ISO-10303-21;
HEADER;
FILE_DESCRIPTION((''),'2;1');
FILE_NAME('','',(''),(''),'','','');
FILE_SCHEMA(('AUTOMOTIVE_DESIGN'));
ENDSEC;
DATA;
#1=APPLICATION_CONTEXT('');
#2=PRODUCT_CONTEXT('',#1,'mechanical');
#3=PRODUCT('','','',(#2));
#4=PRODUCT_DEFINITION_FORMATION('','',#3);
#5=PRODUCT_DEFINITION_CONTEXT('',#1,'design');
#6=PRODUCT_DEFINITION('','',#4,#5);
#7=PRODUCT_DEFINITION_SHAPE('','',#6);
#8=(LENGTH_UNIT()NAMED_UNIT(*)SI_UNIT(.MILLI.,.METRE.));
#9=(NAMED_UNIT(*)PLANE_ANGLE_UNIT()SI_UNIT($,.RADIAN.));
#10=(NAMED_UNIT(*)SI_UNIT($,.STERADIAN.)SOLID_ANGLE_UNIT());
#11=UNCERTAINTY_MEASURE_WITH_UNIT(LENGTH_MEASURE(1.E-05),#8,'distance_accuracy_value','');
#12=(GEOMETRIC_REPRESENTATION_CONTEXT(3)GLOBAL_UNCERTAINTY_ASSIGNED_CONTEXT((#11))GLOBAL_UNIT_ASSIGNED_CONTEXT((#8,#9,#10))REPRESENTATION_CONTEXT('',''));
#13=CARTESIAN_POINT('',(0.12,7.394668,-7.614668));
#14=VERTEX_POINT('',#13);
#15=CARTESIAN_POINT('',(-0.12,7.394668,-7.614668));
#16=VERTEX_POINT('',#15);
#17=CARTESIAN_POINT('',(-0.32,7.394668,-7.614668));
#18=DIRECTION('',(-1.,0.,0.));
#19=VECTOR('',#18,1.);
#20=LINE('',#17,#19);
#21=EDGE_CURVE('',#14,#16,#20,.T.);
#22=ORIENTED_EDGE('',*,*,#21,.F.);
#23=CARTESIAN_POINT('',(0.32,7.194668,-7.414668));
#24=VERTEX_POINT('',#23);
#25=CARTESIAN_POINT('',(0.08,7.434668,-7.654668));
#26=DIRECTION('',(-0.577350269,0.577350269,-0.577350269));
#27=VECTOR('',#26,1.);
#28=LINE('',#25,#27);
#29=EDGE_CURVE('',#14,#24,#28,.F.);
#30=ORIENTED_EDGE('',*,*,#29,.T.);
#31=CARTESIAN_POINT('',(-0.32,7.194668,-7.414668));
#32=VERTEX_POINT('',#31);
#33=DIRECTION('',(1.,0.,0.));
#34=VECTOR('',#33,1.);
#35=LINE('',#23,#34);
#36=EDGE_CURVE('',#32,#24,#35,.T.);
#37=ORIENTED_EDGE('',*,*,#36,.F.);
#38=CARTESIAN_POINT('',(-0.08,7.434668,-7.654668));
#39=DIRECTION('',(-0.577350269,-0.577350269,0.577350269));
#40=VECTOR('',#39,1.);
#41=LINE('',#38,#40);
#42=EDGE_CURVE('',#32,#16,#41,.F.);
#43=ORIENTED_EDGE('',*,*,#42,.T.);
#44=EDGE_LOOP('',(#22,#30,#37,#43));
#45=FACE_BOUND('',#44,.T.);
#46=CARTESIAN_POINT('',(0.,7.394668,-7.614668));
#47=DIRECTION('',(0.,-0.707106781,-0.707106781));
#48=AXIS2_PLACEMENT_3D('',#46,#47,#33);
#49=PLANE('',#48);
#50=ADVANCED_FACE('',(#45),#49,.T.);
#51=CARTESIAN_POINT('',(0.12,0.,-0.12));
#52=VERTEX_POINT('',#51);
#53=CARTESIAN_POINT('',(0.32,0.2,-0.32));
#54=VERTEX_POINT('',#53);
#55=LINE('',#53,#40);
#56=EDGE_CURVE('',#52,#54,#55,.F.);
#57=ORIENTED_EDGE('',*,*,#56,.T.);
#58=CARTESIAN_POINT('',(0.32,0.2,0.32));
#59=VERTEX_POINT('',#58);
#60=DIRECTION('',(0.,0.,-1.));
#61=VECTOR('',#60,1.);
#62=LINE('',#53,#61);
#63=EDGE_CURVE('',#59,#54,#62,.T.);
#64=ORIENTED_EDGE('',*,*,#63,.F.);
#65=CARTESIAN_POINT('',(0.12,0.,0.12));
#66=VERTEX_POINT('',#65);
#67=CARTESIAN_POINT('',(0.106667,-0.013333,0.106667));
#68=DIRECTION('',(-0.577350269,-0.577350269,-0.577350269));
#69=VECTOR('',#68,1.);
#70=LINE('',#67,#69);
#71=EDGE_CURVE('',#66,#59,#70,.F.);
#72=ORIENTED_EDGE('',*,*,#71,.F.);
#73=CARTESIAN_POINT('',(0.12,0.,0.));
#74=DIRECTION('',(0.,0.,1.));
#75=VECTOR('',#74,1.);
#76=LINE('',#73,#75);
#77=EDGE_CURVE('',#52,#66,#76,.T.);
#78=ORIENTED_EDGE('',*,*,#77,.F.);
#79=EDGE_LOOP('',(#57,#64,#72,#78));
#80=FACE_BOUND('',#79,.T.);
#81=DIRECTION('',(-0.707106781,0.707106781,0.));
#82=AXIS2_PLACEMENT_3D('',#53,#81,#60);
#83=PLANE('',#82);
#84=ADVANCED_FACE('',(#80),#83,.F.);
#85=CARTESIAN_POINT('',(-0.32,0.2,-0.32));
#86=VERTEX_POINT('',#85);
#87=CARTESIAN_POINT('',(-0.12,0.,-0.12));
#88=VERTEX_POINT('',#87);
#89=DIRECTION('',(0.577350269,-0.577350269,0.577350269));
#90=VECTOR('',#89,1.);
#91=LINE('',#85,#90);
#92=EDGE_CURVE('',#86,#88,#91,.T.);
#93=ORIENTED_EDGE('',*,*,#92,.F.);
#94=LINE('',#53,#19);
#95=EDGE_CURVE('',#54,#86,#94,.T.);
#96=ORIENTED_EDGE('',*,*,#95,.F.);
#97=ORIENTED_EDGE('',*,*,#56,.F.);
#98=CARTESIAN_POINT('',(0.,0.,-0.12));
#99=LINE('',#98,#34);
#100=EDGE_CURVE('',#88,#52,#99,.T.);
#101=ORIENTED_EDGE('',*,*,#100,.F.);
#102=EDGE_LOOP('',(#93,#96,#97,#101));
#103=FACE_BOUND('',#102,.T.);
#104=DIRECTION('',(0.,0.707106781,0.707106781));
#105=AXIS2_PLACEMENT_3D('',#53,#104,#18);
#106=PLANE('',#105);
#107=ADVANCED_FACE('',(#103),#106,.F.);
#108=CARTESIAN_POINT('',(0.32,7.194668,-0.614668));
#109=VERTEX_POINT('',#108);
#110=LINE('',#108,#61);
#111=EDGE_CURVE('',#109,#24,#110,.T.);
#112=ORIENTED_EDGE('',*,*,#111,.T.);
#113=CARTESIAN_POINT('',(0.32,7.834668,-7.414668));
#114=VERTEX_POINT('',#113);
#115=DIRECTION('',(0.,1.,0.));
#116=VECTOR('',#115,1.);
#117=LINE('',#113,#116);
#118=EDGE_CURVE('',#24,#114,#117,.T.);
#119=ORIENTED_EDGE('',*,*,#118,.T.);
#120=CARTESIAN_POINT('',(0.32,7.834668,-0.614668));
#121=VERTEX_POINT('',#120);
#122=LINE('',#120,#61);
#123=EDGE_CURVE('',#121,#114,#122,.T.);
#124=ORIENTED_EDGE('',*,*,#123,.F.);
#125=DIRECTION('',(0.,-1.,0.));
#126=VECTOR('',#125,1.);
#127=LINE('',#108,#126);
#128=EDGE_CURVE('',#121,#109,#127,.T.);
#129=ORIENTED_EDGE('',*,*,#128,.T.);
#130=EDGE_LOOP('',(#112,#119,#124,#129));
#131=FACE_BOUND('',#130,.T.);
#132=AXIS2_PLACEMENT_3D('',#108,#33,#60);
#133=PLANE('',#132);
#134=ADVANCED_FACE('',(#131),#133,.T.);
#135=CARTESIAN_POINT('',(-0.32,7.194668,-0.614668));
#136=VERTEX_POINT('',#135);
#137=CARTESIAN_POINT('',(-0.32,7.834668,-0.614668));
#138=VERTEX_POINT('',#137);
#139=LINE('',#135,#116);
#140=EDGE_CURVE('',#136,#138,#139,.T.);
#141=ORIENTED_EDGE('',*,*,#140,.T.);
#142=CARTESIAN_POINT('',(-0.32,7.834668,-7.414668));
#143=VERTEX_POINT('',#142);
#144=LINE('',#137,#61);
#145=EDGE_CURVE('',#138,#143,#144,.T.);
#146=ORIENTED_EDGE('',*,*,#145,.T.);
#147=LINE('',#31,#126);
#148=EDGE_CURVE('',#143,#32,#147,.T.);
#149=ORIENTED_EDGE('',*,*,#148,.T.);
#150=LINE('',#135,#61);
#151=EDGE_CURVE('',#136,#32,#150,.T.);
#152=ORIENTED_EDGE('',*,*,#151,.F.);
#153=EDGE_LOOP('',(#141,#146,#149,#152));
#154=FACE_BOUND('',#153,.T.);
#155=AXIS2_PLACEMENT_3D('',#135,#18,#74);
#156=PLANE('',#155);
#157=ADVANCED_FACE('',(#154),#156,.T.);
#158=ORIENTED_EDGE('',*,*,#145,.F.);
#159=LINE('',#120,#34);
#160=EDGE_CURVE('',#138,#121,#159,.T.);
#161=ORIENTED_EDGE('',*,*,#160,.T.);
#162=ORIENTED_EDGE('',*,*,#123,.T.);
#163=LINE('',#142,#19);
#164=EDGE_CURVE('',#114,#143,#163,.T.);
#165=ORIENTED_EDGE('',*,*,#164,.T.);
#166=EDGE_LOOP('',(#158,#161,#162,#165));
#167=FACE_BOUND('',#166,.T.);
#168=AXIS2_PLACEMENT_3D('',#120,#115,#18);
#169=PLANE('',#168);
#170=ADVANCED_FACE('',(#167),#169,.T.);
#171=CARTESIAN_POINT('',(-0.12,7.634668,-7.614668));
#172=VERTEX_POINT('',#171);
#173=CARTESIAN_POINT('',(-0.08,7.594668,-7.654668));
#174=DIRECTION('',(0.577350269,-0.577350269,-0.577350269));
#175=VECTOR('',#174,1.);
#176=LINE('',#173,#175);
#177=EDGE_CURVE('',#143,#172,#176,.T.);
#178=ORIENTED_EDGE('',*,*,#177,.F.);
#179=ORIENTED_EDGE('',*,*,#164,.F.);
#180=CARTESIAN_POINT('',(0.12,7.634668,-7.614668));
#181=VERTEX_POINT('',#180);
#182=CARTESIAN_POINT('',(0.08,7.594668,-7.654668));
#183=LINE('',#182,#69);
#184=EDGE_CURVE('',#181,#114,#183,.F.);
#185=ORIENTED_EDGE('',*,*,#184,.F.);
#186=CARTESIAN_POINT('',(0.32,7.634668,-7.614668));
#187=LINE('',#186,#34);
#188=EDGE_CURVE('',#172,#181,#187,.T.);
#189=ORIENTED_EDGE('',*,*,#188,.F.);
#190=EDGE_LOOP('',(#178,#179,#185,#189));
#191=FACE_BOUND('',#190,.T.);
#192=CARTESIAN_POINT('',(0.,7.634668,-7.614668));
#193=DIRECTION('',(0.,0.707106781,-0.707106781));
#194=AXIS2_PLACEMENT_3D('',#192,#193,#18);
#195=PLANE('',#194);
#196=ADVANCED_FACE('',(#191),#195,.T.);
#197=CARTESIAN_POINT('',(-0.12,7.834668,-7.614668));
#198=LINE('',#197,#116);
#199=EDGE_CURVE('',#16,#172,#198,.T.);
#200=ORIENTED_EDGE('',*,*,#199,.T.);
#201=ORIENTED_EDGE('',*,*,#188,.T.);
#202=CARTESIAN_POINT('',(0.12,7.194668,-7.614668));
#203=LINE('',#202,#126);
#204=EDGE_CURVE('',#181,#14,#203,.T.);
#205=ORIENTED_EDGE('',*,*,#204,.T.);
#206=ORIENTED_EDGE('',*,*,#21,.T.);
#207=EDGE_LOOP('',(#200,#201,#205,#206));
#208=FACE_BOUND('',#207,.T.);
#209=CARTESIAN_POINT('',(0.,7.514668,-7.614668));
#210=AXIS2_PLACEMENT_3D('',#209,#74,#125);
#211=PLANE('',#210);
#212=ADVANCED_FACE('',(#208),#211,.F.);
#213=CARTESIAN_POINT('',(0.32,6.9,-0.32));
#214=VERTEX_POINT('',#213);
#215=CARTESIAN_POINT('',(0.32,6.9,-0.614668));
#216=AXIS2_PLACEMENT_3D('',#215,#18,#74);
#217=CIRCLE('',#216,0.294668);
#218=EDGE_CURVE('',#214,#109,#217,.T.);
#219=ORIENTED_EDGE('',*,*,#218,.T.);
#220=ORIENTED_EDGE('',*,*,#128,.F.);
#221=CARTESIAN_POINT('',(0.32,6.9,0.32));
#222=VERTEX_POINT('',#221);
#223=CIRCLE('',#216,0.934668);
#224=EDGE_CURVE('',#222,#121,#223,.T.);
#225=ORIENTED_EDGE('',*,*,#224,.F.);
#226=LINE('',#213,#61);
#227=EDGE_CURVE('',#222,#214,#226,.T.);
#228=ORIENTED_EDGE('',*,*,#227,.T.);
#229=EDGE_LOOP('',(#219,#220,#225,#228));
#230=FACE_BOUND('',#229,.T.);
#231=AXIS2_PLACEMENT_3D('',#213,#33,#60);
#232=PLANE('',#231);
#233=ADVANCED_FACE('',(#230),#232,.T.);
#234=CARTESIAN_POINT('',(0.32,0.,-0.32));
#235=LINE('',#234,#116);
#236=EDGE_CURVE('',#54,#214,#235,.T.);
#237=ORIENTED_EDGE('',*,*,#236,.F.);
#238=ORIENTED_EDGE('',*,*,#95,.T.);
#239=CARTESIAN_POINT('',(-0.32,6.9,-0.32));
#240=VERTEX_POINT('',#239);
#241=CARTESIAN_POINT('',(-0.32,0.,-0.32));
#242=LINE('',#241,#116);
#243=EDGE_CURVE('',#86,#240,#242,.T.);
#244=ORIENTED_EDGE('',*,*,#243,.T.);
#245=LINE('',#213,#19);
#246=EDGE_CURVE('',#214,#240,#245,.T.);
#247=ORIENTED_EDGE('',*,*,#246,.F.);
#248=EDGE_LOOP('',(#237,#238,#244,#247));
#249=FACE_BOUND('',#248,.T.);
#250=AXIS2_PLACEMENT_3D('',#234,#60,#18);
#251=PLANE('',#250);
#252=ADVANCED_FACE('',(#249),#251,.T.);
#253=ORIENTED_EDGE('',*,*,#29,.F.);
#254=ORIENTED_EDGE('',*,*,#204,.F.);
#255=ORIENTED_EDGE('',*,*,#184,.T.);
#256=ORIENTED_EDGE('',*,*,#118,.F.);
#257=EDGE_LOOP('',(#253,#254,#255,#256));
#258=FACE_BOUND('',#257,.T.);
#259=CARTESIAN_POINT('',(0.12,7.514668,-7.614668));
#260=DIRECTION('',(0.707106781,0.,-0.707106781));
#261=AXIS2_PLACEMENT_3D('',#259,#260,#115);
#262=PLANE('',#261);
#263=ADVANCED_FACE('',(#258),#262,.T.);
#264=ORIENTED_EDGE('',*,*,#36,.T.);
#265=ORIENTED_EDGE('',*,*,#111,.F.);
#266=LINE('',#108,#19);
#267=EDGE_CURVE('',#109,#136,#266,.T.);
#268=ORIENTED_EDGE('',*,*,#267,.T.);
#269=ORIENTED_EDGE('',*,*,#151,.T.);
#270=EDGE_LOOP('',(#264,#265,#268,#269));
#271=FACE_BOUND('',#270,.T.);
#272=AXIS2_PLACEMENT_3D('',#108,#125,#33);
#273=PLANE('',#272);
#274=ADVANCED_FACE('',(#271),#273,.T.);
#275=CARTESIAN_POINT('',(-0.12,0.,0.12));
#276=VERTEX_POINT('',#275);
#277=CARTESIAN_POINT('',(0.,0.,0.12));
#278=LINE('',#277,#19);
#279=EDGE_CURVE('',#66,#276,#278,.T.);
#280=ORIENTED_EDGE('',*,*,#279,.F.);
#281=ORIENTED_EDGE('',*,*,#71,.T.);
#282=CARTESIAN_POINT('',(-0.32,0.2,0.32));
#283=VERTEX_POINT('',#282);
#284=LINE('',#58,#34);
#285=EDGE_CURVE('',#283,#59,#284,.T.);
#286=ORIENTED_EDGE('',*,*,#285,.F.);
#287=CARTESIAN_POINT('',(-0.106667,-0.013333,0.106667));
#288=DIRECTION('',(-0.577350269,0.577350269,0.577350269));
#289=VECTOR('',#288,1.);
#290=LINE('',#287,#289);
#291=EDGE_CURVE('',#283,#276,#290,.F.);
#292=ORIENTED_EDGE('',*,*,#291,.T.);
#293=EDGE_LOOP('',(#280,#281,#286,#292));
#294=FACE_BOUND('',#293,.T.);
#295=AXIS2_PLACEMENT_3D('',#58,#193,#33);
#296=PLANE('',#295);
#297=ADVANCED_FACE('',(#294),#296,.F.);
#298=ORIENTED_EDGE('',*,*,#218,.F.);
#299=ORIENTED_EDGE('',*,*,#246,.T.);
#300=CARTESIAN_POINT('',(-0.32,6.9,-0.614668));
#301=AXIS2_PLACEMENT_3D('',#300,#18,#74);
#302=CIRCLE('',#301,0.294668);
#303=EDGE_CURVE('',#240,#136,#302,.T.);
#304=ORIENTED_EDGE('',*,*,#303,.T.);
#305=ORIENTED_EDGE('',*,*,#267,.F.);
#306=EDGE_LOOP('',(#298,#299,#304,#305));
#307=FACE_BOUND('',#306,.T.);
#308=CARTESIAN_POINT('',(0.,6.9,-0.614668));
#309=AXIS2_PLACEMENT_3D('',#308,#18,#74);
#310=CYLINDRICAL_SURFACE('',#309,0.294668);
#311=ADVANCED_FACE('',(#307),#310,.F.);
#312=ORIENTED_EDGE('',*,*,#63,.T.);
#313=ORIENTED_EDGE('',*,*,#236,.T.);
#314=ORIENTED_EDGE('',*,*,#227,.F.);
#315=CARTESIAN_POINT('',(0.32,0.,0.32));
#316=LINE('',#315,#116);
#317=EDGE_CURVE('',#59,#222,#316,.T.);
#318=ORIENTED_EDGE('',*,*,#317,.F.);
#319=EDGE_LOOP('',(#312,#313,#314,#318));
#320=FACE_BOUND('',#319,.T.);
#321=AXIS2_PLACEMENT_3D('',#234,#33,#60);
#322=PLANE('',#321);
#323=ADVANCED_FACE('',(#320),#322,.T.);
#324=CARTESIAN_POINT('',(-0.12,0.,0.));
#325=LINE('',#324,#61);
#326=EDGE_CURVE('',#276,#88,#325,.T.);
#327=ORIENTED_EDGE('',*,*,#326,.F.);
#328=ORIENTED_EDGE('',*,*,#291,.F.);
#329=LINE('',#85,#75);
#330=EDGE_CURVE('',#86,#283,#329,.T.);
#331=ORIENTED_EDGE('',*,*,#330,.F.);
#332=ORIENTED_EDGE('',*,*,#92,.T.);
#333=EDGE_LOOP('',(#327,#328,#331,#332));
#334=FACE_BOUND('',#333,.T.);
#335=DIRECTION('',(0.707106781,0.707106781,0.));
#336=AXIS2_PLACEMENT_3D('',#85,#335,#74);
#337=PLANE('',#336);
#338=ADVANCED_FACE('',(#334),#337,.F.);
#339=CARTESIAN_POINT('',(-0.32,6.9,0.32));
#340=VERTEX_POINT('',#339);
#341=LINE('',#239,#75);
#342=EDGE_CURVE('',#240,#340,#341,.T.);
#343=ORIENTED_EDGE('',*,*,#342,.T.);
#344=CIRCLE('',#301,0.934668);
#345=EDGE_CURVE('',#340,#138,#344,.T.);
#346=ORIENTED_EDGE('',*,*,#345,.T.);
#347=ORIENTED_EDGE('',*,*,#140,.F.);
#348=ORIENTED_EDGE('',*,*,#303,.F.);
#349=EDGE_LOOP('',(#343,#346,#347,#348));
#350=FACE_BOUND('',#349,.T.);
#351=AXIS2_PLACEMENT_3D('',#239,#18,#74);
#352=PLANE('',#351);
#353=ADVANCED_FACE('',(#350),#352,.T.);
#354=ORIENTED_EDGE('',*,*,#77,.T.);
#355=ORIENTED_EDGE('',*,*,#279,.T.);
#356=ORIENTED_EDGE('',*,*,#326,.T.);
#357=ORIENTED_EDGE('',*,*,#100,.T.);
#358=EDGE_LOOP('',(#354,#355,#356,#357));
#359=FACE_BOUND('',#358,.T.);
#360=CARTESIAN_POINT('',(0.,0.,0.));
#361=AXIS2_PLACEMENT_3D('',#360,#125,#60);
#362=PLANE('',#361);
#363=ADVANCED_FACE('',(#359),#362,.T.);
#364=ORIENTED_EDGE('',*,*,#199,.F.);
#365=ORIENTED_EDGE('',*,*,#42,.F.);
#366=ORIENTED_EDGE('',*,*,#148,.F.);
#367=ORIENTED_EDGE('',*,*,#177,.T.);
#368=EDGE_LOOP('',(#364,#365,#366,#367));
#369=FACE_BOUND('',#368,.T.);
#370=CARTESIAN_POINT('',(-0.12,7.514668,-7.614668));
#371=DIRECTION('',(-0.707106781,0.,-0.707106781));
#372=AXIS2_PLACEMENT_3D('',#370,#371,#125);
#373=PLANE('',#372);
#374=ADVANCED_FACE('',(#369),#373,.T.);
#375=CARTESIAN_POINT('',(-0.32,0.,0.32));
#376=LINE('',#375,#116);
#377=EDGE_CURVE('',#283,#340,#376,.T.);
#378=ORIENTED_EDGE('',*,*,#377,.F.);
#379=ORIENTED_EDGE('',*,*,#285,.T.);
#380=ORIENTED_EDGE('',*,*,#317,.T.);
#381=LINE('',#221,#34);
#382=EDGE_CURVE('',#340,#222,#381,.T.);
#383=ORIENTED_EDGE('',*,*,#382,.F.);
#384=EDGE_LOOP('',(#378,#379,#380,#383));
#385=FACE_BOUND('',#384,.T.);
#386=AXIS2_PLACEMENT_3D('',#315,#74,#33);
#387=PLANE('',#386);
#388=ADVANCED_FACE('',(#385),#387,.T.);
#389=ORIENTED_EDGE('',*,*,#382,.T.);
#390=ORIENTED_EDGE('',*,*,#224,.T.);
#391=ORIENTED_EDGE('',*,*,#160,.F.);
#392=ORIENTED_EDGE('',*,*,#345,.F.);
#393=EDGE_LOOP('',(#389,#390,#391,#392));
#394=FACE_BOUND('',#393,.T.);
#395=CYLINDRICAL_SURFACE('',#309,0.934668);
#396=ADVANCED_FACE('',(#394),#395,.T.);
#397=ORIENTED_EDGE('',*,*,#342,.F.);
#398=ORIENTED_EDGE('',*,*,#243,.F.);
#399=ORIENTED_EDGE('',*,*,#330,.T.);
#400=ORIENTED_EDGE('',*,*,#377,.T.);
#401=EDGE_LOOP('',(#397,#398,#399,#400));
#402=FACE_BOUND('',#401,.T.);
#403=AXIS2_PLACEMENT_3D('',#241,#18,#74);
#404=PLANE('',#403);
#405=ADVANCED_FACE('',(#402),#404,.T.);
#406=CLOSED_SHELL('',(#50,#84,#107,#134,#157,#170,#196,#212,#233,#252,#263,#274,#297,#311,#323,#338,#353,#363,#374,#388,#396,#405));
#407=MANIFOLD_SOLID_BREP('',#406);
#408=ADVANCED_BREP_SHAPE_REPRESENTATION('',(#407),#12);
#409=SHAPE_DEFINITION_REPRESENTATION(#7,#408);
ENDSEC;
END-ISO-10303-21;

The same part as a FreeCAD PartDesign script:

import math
import FreeCAD as App
import Part
import Sketcher
from FreeCAD import Vector


def edges_at(feature, points):
    """Names of the edges that pass closest to the given points."""
    edges = feature.Shape.Edges
    near = lambda p: min(range(len(edges)), key=lambda i: edges[i].distToShape(Part.Vertex(*p))[0])
    return sorted({f"Edge{near(p) + 1}" for p in points})


def add_polygon(sketch, points):
    """Adds a closed chain of lines whose ends are joined by coincident constraints."""
    first, n = sketch.GeometryCount, len(points)
    for a, b in zip(points, points[1:] + points[:1]):
        sketch.addGeometry(Part.LineSegment(App.Vector(*a, 0), App.Vector(*b, 0)), False)
    for i in range(n):
        sketch.addConstraint(Sketcher.Constraint("Coincident", first + i, 2, first + (i + 1) % n, 1))

doc = App.newDocument("Part")
body = doc.addObject("PartDesign::Body", "Body")

# Sketch on XZ plane
sketch1 = body.newObject("Sketcher::SketchObject", "Sketch")
sketch1.AttachmentSupport = (doc.getObject("XZ_Plane"), [""])
sketch1.MapMode = "FlatFace"
add_polygon(sketch1, [(-0.3, -0.3), (-0.3, 0.3), (0.3, 0.3), (0.3, -0.3)])  # lines 0-3
sketch1.addConstraint(Sketcher.Constraint("Vertical", 0))
sketch1.addConstraint(Sketcher.Constraint("Horizontal", 1))
sketch1.addConstraint(Sketcher.Constraint("Vertical", 2))
sketch1.addConstraint(Sketcher.Constraint("Horizontal", 3))
sketch1.addConstraint(Sketcher.Constraint("Symmetric", 0, 2, 2, 2, -1, 1))
sketch1.addConstraint(Sketcher.Constraint("Equal", 3, 0))
sketch1.addConstraint(Sketcher.Constraint("DistanceX", 1, 1, 1, 2, 0.64))

# Sketch on YZ plane
sketch2 = body.newObject("Sketcher::SketchObject", "Sketch001")
sketch2.AttachmentSupport = (doc.getObject("YZ_Plane"), [""])
sketch2.MapMode = "FlatFace"
sketch2.addGeometry(Part.LineSegment(Vector(0, 0, 0), Vector(6.9, 0, 0)), False)
sketch2.addGeometry(Part.ArcOfCircle(Part.Circle(Vector(6.9, -0.6, 0), Vector(0, 0, 1), 0.6), math.radians(0), math.radians(90)), False)
sketch2.addGeometry(Part.LineSegment(Vector(7.5, -0.6, 0), Vector(7.5, -7.6, 0)), False)
sketch2.addConstraint(Sketcher.Constraint("Tangent", 0, 2, 1, 2))
sketch2.addConstraint(Sketcher.Constraint("Tangent", 1, 1, 2, 1))
sketch2.addConstraint(Sketcher.Constraint("Horizontal", 0))
sketch2.addConstraint(Sketcher.Constraint("Vertical", 2))
sketch2.addConstraint(Sketcher.Constraint("PointOnObject", 0, 1, -2))
sketch2.addConstraint(Sketcher.Constraint("Radius", 1, 0.6))
sketch2.addConstraint(Sketcher.Constraint("DistanceY", 2, 2, 2, 1, 7.0))
sketch2.addConstraint(Sketcher.Constraint("DistanceX", 0, 1, 0, 2, 6.9))
sketch2.addConstraint(Sketcher.Constraint("DistanceY", 1, 3, -1, 1, 0.614668))
doc.recompute()

additivepipe = body.newObject("PartDesign::AdditivePipe", "AdditivePipe")
additivepipe.Profile = sketch1
additivepipe.Spine = (sketch2, ["Edge1", "Edge2", "Edge3"])
doc.recompute()

chamfer = body.newObject("PartDesign::Chamfer", "Chamfer")
chamfer.Base = (additivepipe, edges_at(additivepipe, [
    (0, 0, 0.32),
    (0.32, 0, 0),
    (0, 0, -0.32),
    (-0.32, 7.515, -7.615),
    (0, 7.835, -7.615),
    (0.32, 7.515, -7.615),
    (0, 7.195, -7.615),
    (-0.32, 0, 0),
]))
chamfer.Size = 0.2

doc.recompute()
